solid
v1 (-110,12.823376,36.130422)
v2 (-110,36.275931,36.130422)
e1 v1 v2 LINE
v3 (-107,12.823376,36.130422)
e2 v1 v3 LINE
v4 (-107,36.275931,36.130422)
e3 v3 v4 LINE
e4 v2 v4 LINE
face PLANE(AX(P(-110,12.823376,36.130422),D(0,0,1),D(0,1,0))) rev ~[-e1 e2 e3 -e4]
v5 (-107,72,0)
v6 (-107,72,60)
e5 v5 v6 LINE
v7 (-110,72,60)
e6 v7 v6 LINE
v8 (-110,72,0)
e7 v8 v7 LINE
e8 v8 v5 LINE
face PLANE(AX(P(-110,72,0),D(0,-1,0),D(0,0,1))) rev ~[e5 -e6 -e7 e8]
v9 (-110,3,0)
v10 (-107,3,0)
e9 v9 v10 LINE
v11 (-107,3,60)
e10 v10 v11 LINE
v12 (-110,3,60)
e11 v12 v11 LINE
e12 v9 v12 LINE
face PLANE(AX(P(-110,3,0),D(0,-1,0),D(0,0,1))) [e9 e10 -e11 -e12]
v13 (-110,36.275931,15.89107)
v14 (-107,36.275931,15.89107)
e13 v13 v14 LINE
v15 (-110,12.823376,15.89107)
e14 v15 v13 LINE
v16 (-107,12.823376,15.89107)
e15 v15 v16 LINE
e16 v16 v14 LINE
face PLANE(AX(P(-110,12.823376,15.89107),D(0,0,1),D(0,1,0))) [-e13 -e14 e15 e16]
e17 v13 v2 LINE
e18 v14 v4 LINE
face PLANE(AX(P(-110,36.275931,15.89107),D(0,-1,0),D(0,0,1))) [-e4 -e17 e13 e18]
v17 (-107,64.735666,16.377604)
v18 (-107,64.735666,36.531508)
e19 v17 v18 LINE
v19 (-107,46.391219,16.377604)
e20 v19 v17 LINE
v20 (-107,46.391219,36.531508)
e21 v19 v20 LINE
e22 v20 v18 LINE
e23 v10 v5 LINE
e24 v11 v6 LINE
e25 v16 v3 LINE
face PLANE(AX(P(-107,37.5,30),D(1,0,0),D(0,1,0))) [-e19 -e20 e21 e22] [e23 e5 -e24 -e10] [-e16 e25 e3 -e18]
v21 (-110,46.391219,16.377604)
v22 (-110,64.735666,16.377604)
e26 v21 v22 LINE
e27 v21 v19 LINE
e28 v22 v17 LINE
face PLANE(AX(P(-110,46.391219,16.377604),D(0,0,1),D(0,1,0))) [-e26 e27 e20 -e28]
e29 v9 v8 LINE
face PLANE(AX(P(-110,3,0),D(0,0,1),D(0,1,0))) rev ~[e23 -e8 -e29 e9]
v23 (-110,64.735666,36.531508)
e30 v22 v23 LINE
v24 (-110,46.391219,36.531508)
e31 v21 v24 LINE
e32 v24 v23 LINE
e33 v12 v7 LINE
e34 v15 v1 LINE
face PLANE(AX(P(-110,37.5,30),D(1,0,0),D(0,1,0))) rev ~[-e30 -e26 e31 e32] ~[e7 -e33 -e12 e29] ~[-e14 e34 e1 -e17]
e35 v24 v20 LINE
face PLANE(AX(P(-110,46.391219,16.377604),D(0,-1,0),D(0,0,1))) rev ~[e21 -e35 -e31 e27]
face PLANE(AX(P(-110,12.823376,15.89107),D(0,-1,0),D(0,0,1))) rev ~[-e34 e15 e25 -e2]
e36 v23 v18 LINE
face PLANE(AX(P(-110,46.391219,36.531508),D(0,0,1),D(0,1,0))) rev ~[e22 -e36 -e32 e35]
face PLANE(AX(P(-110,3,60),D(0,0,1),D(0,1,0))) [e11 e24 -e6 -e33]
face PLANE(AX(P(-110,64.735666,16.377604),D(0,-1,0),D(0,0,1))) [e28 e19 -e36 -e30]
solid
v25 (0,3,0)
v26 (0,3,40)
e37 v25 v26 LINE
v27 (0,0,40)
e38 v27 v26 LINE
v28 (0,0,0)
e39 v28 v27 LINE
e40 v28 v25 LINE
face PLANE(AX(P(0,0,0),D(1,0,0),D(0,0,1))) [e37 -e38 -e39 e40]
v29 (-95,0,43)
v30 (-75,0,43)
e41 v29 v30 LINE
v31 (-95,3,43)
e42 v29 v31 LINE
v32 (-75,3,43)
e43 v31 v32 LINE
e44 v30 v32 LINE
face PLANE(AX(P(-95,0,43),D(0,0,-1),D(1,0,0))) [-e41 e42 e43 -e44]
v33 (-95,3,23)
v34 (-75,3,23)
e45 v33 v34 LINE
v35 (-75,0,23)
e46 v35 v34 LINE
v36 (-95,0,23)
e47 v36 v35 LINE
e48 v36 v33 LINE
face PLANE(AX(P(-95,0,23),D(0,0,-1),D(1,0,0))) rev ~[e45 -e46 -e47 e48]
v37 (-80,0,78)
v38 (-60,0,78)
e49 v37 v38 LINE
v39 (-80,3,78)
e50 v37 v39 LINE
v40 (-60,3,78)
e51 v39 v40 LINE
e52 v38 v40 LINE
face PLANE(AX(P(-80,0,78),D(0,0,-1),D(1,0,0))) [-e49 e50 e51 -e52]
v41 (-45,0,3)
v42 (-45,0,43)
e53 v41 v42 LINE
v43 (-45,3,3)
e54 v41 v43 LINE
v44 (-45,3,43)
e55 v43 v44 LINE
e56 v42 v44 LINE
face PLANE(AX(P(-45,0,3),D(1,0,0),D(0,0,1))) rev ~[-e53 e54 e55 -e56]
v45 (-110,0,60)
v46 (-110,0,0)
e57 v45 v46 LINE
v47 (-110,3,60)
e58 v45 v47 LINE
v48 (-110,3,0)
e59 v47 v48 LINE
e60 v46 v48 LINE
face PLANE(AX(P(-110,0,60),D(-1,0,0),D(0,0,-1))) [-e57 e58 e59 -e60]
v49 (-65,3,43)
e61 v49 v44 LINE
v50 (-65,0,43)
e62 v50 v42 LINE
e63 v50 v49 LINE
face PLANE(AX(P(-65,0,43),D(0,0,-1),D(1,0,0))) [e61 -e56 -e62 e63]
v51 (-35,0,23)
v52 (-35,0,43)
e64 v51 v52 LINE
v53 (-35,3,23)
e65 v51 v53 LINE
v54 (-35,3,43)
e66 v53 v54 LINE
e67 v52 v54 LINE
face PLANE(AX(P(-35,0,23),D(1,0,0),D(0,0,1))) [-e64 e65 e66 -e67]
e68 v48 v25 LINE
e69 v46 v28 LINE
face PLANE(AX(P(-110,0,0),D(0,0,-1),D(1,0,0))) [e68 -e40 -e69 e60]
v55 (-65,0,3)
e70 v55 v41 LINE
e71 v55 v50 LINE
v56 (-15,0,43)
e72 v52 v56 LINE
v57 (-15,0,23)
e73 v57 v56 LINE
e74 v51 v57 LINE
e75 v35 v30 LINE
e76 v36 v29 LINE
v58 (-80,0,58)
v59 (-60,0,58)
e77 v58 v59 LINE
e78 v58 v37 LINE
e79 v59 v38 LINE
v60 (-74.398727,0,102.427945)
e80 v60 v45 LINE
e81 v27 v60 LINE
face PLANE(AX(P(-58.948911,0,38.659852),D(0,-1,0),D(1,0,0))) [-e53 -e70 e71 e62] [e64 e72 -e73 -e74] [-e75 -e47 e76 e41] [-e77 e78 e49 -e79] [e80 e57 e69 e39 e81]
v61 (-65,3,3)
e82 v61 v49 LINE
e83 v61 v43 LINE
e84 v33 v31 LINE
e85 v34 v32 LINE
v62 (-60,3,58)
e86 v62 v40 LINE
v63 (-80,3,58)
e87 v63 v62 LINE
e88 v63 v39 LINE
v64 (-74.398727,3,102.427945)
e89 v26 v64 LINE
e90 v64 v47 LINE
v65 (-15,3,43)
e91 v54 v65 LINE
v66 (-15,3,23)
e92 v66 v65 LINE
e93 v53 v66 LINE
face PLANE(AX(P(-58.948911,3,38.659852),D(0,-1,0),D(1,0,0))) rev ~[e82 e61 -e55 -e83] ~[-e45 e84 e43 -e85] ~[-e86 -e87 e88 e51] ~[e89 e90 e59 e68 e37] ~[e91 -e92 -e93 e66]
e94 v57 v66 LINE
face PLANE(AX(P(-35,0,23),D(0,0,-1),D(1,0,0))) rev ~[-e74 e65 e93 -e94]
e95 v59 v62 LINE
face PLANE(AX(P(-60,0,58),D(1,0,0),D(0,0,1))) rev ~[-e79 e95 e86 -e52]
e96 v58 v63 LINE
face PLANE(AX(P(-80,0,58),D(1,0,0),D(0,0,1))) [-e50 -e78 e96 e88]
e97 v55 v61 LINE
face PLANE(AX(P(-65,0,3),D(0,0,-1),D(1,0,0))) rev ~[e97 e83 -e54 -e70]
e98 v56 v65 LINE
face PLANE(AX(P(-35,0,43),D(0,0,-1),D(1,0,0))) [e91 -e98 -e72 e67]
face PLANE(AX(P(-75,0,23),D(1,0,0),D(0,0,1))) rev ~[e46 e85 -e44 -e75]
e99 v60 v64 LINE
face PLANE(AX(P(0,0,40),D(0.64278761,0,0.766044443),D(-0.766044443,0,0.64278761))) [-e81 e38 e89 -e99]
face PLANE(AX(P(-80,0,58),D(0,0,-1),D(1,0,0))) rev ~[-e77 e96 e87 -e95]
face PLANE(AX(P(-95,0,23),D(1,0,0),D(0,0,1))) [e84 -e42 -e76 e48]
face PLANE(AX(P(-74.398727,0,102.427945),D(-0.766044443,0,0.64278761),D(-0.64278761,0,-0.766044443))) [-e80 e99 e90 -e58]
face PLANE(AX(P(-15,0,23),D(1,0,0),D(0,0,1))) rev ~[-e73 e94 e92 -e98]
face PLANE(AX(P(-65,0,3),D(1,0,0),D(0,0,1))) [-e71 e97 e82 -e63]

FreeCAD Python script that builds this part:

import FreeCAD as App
import Part
import Sketcher
from FreeCAD import Vector
Q = App.Units.Quantity

doc = App.newDocument("Part")
body = doc.addObject("PartDesign::Body", "Body")

# Sketch on XZ plane
sketch1 = doc.addObject("Sketcher::SketchObject", "Sketch")
body.addObject(sketch1)
sketch1.AttachmentSupport = (doc.XZ_Plane, [""])
sketch1.MapMode = "FlatFace"
sketch1.addGeometry(Part.LineSegment(Vector(-110, 60, 0), Vector(-110, 0, 0)), False)
sketch1.addGeometry(Part.LineSegment(Vector(-110, 0, 0), Vector(0, 0, 0)), False)
sketch1.addGeometry(Part.LineSegment(Vector(0, 0, 0), Vector(0, 40, 0)), False)
sketch1.addGeometry(Part.LineSegment(Vector(0, 40, 0), Vector(-74, 102, 0)), False)
sketch1.addGeometry(Part.LineSegment(Vector(-74, 102, 0), Vector(-110, 60, 0)), False)
sketch1.addGeometry(Part.LineSegment(Vector(-75, 23, 0), Vector(-95, 23, 0)), False)
sketch1.addGeometry(Part.LineSegment(Vector(-95, 23, 0), Vector(-95, 43, 0)), False)
sketch1.addGeometry(Part.LineSegment(Vector(-95, 43, 0), Vector(-75, 43, 0)), False)
sketch1.addGeometry(Part.LineSegment(Vector(-75, 43, 0), Vector(-75, 23, 0)), False)
sketch1.addGeometry(Part.LineSegment(Vector(-45, 3, 0), Vector(-65, 3, 0)), False)
sketch1.addGeometry(Part.LineSegment(Vector(-65, 3, 0), Vector(-65, 43, 0)), False)
sketch1.addGeometry(Part.LineSegment(Vector(-65, 43, 0), Vector(-45, 43, 0)), False)
sketch1.addGeometry(Part.LineSegment(Vector(-45, 43, 0), Vector(-45, 3, 0)), False)
sketch1.addGeometry(Part.LineSegment(Vector(-15, 23, 0), Vector(-35, 23, 0)), False)
sketch1.addGeometry(Part.LineSegment(Vector(-35, 23, 0), Vector(-35, 43, 0)), False)
sketch1.addGeometry(Part.LineSegment(Vector(-35, 43, 0), Vector(-15, 43, 0)), False)
sketch1.addGeometry(Part.LineSegment(Vector(-15, 43, 0), Vector(-15, 23, 0)), False)
sketch1.addGeometry(Part.LineSegment(Vector(-60, 58, 0), Vector(-80, 58, 0)), False)
sketch1.addGeometry(Part.LineSegment(Vector(-80, 58, 0), Vector(-80, 78, 0)), False)
sketch1.addGeometry(Part.LineSegment(Vector(-80, 78, 0), Vector(-60, 78, 0)), False)
sketch1.addGeometry(Part.LineSegment(Vector(-60, 78, 0), Vector(-60, 58, 0)), False)
sketch1.addConstraint(Sketcher.Constraint("Coincident", 0, 2, 1, 1))
sketch1.addConstraint(Sketcher.Constraint("Coincident", 1, 2, 2, 1))
sketch1.addConstraint(Sketcher.Constraint("Coincident", 2, 2, 3, 1))
sketch1.addConstraint(Sketcher.Constraint("Coincident", 3, 2, 4, 1))
sketch1.addConstraint(Sketcher.Constraint("Coincident", 4, 2, 0, 1))
sketch1.addConstraint(Sketcher.Constraint("Coincident", 5, 2, 6, 1))
sketch1.addConstraint(Sketcher.Constraint("Coincident", 6, 2, 7, 1))
sketch1.addConstraint(Sketcher.Constraint("Coincident", 7, 2, 8, 1))
sketch1.addConstraint(Sketcher.Constraint("Coincident", 8, 2, 5, 1))
sketch1.addConstraint(Sketcher.Constraint("Coincident", 9, 2, 10, 1))
sketch1.addConstraint(Sketcher.Constraint("Coincident", 10, 2, 11, 1))
sketch1.addConstraint(Sketcher.Constraint("Coincident", 11, 2, 12, 1))
sketch1.addConstraint(Sketcher.Constraint("Coincident", 12, 2, 9, 1))
sketch1.addConstraint(Sketcher.Constraint("Coincident", 13, 2, 14, 1))
sketch1.addConstraint(Sketcher.Constraint("Coincident", 14, 2, 15, 1))
sketch1.addConstraint(Sketcher.Constraint("Coincident", 15, 2, 16, 1))
sketch1.addConstraint(Sketcher.Constraint("Coincident", 16, 2, 13, 1))
sketch1.addConstraint(Sketcher.Constraint("Coincident", 17, 2, 18, 1))
sketch1.addConstraint(Sketcher.Constraint("Coincident", 18, 2, 19, 1))
sketch1.addConstraint(Sketcher.Constraint("Coincident", 19, 2, 20, 1))
sketch1.addConstraint(Sketcher.Constraint("Coincident", 20, 2, 17, 1))
sketch1.addConstraint(Sketcher.Constraint("Vertical", 0))
sketch1.addConstraint(Sketcher.Constraint("Horizontal", 1))
sketch1.addConstraint(Sketcher.Constraint("Vertical", 2))
sketch1.addConstraint(Sketcher.Constraint("Horizontal", 5))
sketch1.addConstraint(Sketcher.Constraint("Vertical", 6))
sketch1.addConstraint(Sketcher.Constraint("Horizontal", 7))
sketch1.addConstraint(Sketcher.Constraint("Vertical", 8))
sketch1.addConstraint(Sketcher.Constraint("Horizontal", 9))
sketch1.addConstraint(Sketcher.Constraint("Vertical", 10))
sketch1.addConstraint(Sketcher.Constraint("Horizontal", 11))
sketch1.addConstraint(Sketcher.Constraint("Vertical", 12))
sketch1.addConstraint(Sketcher.Constraint("Horizontal", 13))
sketch1.addConstraint(Sketcher.Constraint("Vertical", 14))
sketch1.addConstraint(Sketcher.Constraint("Horizontal", 15))
sketch1.addConstraint(Sketcher.Constraint("Vertical", 16))
sketch1.addConstraint(Sketcher.Constraint("Horizontal", 17))
sketch1.addConstraint(Sketcher.Constraint("Vertical", 18))
sketch1.addConstraint(Sketcher.Constraint("Horizontal", 19))
sketch1.addConstraint(Sketcher.Constraint("Vertical", 20))
sketch1.addConstraint(Sketcher.Constraint("Coincident", 1, 2, -1, 1))
sketch1.addConstraint(Sketcher.Constraint("Perpendicular", 3, 4))
sketch1.addConstraint(Sketcher.Constraint("Horizontal", 7, 2, 10, 2))
sketch1.addConstraint(Sketcher.Constraint("Horizontal", 8, 2, 13, 2))
sketch1.addConstraint(Sketcher.Constraint("Horizontal", 11, 2, 14, 2))
sketch1.addConstraint(Sketcher.Constraint("Equal", 7, 9))
sketch1.addConstraint(Sketcher.Constraint("Equal", 11, 13))
sketch1.addConstraint(Sketcher.Constraint("Equal", 15, 17))
sketch1.addConstraint(Sketcher.Constraint("Equal", 19, 6))
sketch1.addConstraint(Sketcher.Constraint("Equal", 2, 10))
sketch1.addConstraint(Sketcher.Constraint("Equal", 16, 18))
sketch1.addConstraint(Sketcher.Constraint("DistanceX", 1, 1, 1, 2, 110.0))
sketch1.addConstraint(Sketcher.Constraint("DistanceX", 5, 2, 5, 1, 20.0))
sketch1.addConstraint(Sketcher.Constraint("DistanceY", 0, 2, 0, 1, 60.0))
sketch1.addConstraint(Sketcher.Constraint("DistanceY", 2, 1, 2, 2, 40.0))
sketch1.addConstraint(Sketcher.Constraint("Angle", 3, Q("140 deg")))
sketch1.addConstraint(Sketcher.Constraint("DistanceX", 5, 2, -1, 1, 95.0))
sketch1.addConstraint(Sketcher.Constraint("DistanceY", -1, 1, 5, 2, 23.0))
sketch1.addConstraint(Sketcher.Constraint("DistanceX", 9, 2, -1, 1, 65.0))
sketch1.addConstraint(Sketcher.Constraint("DistanceX", 13, 2, -1, 1, 35.0))
sketch1.addConstraint(Sketcher.Constraint("DistanceX", 17, 2, -1, 1, 80.0))
sketch1.addConstraint(Sketcher.Constraint("DistanceY", -1, 1, 17, 2, 58.0))
pad1 = doc.addObject("PartDesign::Pad", "Pad")
body.addObject(pad1)
pad1.Profile = sketch1
pad1.Length = 3
pad1.Reversed = True
body2 = doc.addObject("PartDesign::Body", "Body001")

# Sketch on YZ plane
sketch2 = doc.addObject("Sketcher::SketchObject", "Sketch001")
body2.addObject(sketch2)
sketch2.AttachmentSupport = (doc.getObject("YZ_Plane001"), [""])
sketch2.MapMode = "FlatFace"
sketch2.AttachmentOffset = App.Placement(Vector(0, 0, -110), App.Rotation())
sketch2.addGeometry(Part.LineSegment(Vector(3, 60, 0), Vector(3, 0, 0)), False)
sketch2.addGeometry(Part.LineSegment(Vector(3, 0, 0), Vector(72, 0, 0)), False)
sketch2.addGeometry(Part.LineSegment(Vector(72, 0, 0), Vector(72, 60, 0)), False)
sketch2.addGeometry(Part.LineSegment(Vector(72, 60, 0), Vector(3, 60, 0)), False)
sketch2.addGeometry(Part.LineSegment(Vector(36, 16, 0), Vector(13, 16, 0)), False)
sketch2.addGeometry(Part.LineSegment(Vector(13, 16, 0), Vector(13, 36, 0)), False)
sketch2.addGeometry(Part.LineSegment(Vector(13, 36, 0), Vector(36, 36, 0)), False)
sketch2.addGeometry(Part.LineSegment(Vector(36, 36, 0), Vector(36, 16, 0)), False)
sketch2.addGeometry(Part.LineSegment(Vector(65, 16, 0), Vector(46, 16, 0)), False)
sketch2.addGeometry(Part.LineSegment(Vector(46, 16, 0), Vector(46, 37, 0)), False)
sketch2.addGeometry(Part.LineSegment(Vector(46, 37, 0), Vector(65, 37, 0)), False)
sketch2.addGeometry(Part.LineSegment(Vector(65, 37, 0), Vector(65, 16, 0)), False)
sketch2.addConstraint(Sketcher.Constraint("Coincident", 0, 2, 1, 1))
sketch2.addConstraint(Sketcher.Constraint("Coincident", 1, 2, 2, 1))
sketch2.addConstraint(Sketcher.Constraint("Coincident", 2, 2, 3, 1))
sketch2.addConstraint(Sketcher.Constraint("Coincident", 3, 2, 0, 1))
sketch2.addConstraint(Sketcher.Constraint("Coincident", 4, 2, 5, 1))
sketch2.addConstraint(Sketcher.Constraint("Coincident", 5, 2, 6, 1))
sketch2.addConstraint(Sketcher.Constraint("Coincident", 6, 2, 7, 1))
sketch2.addConstraint(Sketcher.Constraint("Coincident", 7, 2, 4, 1))
sketch2.addConstraint(Sketcher.Constraint("Coincident", 8, 2, 9, 1))
sketch2.addConstraint(Sketcher.Constraint("Coincident", 9, 2, 10, 1))
sketch2.addConstraint(Sketcher.Constraint("Coincident", 10, 2, 11, 1))
sketch2.addConstraint(Sketcher.Constraint("Coincident", 11, 2, 8, 1))
sketch2.addConstraint(Sketcher.Constraint("Vertical", 0))
sketch2.addConstraint(Sketcher.Constraint("Horizontal", 1))
sketch2.addConstraint(Sketcher.Constraint("Vertical", 2))
sketch2.addConstraint(Sketcher.Constraint("Horizontal", 3))
sketch2.addConstraint(Sketcher.Constraint("Horizontal", 4))
sketch2.addConstraint(Sketcher.Constraint("Vertical", 5))
sketch2.addConstraint(Sketcher.Constraint("Horizontal", 6))
sketch2.addConstraint(Sketcher.Constraint("Vertical", 7))
sketch2.addConstraint(Sketcher.Constraint("Horizontal", 8))
sketch2.addConstraint(Sketcher.Constraint("Vertical", 9))
sketch2.addConstraint(Sketcher.Constraint("Horizontal", 10))
sketch2.addConstraint(Sketcher.Constraint("Vertical", 11))
sketch2.addConstraint(Sketcher.Constraint("PointOnObject", 0, 2, -1))
sketch2.addConstraint(Sketcher.Constraint("DistanceX", 1, 1, 1, 2, 69.0))
sketch2.addConstraint(Sketcher.Constraint("DistanceY", 0, 2, 0, 1, 60.0))
sketch2.addConstraint(Sketcher.Constraint("DistanceX", -1, 1, 0, 2, 3.0))
sketch2.addConstraint(Sketcher.Constraint("DistanceX", 4, 2, 4, 1, 23.452555))
sketch2.addConstraint(Sketcher.Constraint("DistanceX", 8, 2, 8, 1, 18.344447))
sketch2.addConstraint(Sketcher.Constraint("DistanceY", 5, 1, 5, 2, 20.239352))
sketch2.addConstraint(Sketcher.Constraint("DistanceY", 9, 1, 9, 2, 20.153904))
sketch2.addConstraint(Sketcher.Constraint("DistanceY", -1, 1, 4, 2, 15.89107))
sketch2.addConstraint(Sketcher.Constraint("DistanceX", -1, 1, 6, 2, 36.275931))
sketch2.addConstraint(Sketcher.Constraint("DistanceX", -1, 1, 8, 2, 46.391219))
sketch2.addConstraint(Sketcher.Constraint("DistanceY", 8, 2, 6, 2, 19.752818))
pad2 = doc.addObject("PartDesign::Pad", "Pad001")
body2.addObject(pad2)
pad2.Profile = sketch2
pad2.Length = 3

doc.recompute()
